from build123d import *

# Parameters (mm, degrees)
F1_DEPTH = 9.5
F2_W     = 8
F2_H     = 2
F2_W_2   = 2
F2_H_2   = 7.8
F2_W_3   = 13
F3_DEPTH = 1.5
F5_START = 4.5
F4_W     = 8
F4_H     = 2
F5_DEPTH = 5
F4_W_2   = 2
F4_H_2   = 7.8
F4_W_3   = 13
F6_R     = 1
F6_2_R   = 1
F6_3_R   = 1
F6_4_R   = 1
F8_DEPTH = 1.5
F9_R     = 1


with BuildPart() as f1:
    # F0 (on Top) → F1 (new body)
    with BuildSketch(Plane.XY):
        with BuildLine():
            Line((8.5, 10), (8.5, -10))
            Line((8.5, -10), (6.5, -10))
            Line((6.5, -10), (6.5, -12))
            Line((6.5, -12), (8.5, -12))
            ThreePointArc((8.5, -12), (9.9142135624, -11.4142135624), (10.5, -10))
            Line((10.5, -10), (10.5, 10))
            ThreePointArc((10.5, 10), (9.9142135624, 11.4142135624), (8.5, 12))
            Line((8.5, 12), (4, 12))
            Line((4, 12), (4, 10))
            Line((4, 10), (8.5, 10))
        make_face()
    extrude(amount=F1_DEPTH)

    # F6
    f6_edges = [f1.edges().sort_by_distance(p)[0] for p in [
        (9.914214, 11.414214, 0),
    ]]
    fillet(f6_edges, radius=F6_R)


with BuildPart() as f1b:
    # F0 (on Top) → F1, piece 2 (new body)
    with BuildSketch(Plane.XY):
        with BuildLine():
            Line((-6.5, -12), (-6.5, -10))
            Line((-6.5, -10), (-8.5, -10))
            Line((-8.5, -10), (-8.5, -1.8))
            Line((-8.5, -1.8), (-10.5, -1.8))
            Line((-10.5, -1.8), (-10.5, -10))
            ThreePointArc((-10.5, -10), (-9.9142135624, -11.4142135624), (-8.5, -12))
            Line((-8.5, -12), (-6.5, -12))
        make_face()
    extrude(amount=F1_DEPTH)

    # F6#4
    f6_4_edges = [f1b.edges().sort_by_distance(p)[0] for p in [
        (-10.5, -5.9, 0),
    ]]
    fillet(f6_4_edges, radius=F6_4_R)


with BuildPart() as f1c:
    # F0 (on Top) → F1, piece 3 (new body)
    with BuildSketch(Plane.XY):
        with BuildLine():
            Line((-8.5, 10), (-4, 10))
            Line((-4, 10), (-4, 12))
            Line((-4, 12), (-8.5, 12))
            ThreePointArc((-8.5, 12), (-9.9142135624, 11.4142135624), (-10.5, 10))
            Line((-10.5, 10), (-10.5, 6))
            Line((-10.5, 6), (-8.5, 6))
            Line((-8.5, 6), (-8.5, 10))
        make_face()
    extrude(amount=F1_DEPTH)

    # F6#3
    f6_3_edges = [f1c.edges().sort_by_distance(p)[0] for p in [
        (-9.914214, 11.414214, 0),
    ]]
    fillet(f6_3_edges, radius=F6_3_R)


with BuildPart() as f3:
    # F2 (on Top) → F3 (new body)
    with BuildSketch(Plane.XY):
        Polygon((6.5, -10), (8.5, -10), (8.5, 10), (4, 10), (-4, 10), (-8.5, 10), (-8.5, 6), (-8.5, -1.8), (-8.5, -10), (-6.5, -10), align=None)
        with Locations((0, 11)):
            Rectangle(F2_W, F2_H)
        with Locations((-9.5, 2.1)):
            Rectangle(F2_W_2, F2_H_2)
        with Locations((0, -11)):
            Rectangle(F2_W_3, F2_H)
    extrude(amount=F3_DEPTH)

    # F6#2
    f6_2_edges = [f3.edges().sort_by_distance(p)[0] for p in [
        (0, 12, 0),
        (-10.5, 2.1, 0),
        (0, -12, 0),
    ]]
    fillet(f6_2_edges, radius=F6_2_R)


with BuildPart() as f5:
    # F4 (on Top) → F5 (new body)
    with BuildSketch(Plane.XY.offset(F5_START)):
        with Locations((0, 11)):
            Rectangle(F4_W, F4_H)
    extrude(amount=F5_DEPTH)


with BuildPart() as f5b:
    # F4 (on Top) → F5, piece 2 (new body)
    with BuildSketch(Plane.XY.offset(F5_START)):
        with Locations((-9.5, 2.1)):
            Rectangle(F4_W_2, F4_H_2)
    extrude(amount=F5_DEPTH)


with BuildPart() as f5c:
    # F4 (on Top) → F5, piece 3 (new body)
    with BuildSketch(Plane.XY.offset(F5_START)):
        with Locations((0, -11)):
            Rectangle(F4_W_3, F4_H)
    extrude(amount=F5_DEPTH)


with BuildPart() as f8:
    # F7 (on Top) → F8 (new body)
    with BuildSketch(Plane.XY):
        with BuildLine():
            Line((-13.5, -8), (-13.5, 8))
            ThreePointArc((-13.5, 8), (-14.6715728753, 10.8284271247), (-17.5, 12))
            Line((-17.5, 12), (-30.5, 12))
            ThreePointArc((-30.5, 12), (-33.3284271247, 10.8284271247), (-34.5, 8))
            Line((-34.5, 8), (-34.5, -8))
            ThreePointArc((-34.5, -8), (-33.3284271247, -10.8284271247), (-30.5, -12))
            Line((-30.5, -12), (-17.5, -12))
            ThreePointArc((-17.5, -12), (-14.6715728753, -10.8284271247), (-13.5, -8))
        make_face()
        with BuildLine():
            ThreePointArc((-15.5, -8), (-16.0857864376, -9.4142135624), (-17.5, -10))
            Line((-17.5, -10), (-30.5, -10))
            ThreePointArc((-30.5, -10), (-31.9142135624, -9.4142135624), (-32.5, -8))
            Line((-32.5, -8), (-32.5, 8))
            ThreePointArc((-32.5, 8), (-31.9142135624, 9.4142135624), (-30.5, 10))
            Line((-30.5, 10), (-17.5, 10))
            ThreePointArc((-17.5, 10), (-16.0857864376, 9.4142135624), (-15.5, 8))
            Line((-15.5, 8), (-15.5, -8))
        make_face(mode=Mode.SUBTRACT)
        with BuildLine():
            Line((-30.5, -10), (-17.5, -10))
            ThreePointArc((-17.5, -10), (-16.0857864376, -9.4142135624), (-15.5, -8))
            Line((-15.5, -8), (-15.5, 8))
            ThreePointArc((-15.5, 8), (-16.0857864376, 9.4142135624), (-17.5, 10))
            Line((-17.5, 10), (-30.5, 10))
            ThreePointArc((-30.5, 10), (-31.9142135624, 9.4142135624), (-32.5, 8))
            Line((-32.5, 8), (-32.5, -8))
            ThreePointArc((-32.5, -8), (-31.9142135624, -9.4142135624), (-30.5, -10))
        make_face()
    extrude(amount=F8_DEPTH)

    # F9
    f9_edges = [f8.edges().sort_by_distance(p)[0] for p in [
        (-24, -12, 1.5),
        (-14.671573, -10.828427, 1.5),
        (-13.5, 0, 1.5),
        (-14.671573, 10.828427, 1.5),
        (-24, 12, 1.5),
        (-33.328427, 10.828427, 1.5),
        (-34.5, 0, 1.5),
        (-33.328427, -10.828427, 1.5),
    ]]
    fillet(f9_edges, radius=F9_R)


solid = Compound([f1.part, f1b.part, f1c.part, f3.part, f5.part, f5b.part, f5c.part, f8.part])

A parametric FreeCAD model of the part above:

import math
import FreeCAD as App
import Part
import Sketcher
from FreeCAD import Vector
Q = App.Units.Quantity


def edges_at(feature, points):
    """Names of the edges that pass closest to the given points."""
    edges = feature.Shape.Edges
    near = lambda p: min(range(len(edges)), key=lambda i: edges[i].distToShape(Part.Vertex(*p))[0])
    return sorted({f"Edge{near(p) + 1}" for p in points})

doc = App.newDocument("Part")
body = doc.addObject("PartDesign::Body", "Body")

sketch1 = body.newObject("Sketcher::SketchObject", "Sketch")
sketch1.AttachmentSupport = (doc.getObject("XY_Plane"), [""])
sketch1.MapMode = "FlatFace"
sketch1.addGeometry([
    Part.LineSegment(Vector(8.5, 10, 0), Vector(8.5, -10, 0)),
    Part.LineSegment(Vector(8.5, -10, 0), Vector(6.5, -10, 0)),
    Part.LineSegment(Vector(6.5, -10, 0), Vector(6.5, -12, 0)),
    Part.LineSegment(Vector(6.5, -12, 0), Vector(8.5, -12, 0)),
    Part.ArcOfCircle(Part.Circle(Vector(8.5, -10, 0), Vector(0, 0, 1), 2), math.radians(-90), math.radians(0)),
    Part.LineSegment(Vector(10.5, -10, 0), Vector(10.5, 10, 0)),
    Part.ArcOfCircle(Part.Circle(Vector(8.5, 10, 0), Vector(0, 0, 1), 2), math.radians(0), math.radians(90)),
    Part.LineSegment(Vector(8.5, 12, 0), Vector(4, 12, 0)),
    Part.LineSegment(Vector(4, 12, 0), Vector(4, 10, 0)),
    Part.LineSegment(Vector(4, 10, 0), Vector(8.5, 10, 0)),
], False)
sketch1.addConstraint([
    Sketcher.Constraint("Coincident", 0, 2, 1, 1),
    Sketcher.Constraint("Coincident", 1, 2, 2, 1),
    Sketcher.Constraint("Coincident", 2, 2, 3, 1),
    Sketcher.Constraint("Tangent", 3, 2, 4, 1),
    Sketcher.Constraint("Tangent", 4, 2, 5, 1),
    Sketcher.Constraint("Tangent", 5, 2, 6, 1),
    Sketcher.Constraint("Tangent", 6, 2, 7, 1),
    Sketcher.Constraint("Coincident", 7, 2, 8, 1),
    Sketcher.Constraint("Coincident", 8, 2, 9, 1),
    Sketcher.Constraint("Coincident", 9, 2, 0, 1),
    Sketcher.Constraint("Vertical", 0),
    Sketcher.Constraint("Horizontal", 1),
    Sketcher.Constraint("Vertical", 2),
    Sketcher.Constraint("Horizontal", 3),
    Sketcher.Constraint("Vertical", 5),
    Sketcher.Constraint("Horizontal", 7),
    Sketcher.Constraint("Vertical", 8),
    Sketcher.Constraint("Horizontal", 9),
    Sketcher.Constraint("Coincident", 0, 2, 4, 3),
    Sketcher.Constraint("Coincident", 9, 2, 6, 3),
    Sketcher.Constraint("Equal", 3, 2),
    Sketcher.Constraint("Radius", 4, Q("2 mm")),
    Sketcher.Constraint("DistanceY", 0, 2, 0, 1, Q("20 mm")),
    Sketcher.Constraint("DistanceX", 7, 2, 7, 1, Q("4.5 mm")),
    Sketcher.Constraint("DistanceY", 4, 3, -1, 1, Q("10 mm")),
    Sketcher.Constraint("DistanceX", -1, 1, 7, 2, Q("4 mm")),
])
pad1 = body.newObject("PartDesign::Pad", "Pad")
pad1.Profile = sketch1
pad1.Length = 9.5
doc.recompute()

fillet = body.newObject("PartDesign::Fillet", "Fillet")
fillet.Base = (pad1, edges_at(pad1, [(9.914, 11.414, 0)]))
fillet.Radius = 1
body2 = doc.addObject("PartDesign::Body", "Body001")

sketch2 = body2.newObject("Sketcher::SketchObject", "Sketch001")
sketch2.AttachmentSupport = (doc.getObject("XY_Plane001"), [""])
sketch2.MapMode = "FlatFace"
sketch2.addGeometry([
    Part.LineSegment(Vector(-6.5, -12, 0), Vector(-6.5, -10, 0)),
    Part.LineSegment(Vector(-6.5, -10, 0), Vector(-8.5, -10, 0)),
    Part.LineSegment(Vector(-8.5, -10, 0), Vector(-8.5, -1.8, 0)),
    Part.LineSegment(Vector(-8.5, -1.8, 0), Vector(-10.5, -1.8, 0)),
    Part.LineSegment(Vector(-10.5, -1.8, 0), Vector(-10.5, -10, 0)),
    Part.ArcOfCircle(Part.Circle(Vector(-8.5, -10, 0), Vector(0, 0, 1), 2), math.radians(180), math.radians(270)),
    Part.LineSegment(Vector(-8.5, -12, 0), Vector(-6.5, -12, 0)),
], False)
sketch2.addConstraint([
    Sketcher.Constraint("Coincident", 0, 2, 1, 1),
    Sketcher.Constraint("Coincident", 1, 2, 2, 1),
    Sketcher.Constraint("Coincident", 2, 2, 3, 1),
    Sketcher.Constraint("Coincident", 3, 2, 4, 1),
    Sketcher.Constraint("Tangent", 4, 2, 5, 1),
    Sketcher.Constraint("Tangent", 5, 2, 6, 1),
    Sketcher.Constraint("Coincident", 6, 2, 0, 1),
    Sketcher.Constraint("Vertical", 0),
    Sketcher.Constraint("Horizontal", 1),
    Sketcher.Constraint("Vertical", 2),
    Sketcher.Constraint("Horizontal", 3),
    Sketcher.Constraint("Vertical", 4),
    Sketcher.Constraint("Horizontal", 6),
    Sketcher.Constraint("Coincident", 1, 2, 5, 3),
    Sketcher.Constraint("Equal", 1, 3),
    Sketcher.Constraint("Radius", 5, Q("2 mm")),
    Sketcher.Constraint("DistanceY", 2, 1, 2, 2, Q("8.2 mm")),
    Sketcher.Constraint("DistanceY", 5, 3, -1, 1, Q("10 mm")),
    Sketcher.Constraint("DistanceX", 5, 3, -1, 1, Q("8.5 mm")),
])
pad2 = body2.newObject("PartDesign::Pad", "Pad001")
pad2.Profile = sketch2
pad2.Length = 9.5
doc.recompute()

fillet2 = body2.newObject("PartDesign::Fillet", "Fillet001")
fillet2.Base = (pad2, edges_at(pad2, [(-10.5, -5.9, 0)]))
fillet2.Radius = 1
body3 = doc.addObject("PartDesign::Body", "Body002")

sketch3 = body3.newObject("Sketcher::SketchObject", "Sketch002")
sketch3.AttachmentSupport = (doc.getObject("XY_Plane002"), [""])
sketch3.MapMode = "FlatFace"
sketch3.addGeometry([
    Part.LineSegment(Vector(-8.5, 10, 0), Vector(-4, 10, 0)),
    Part.LineSegment(Vector(-4, 10, 0), Vector(-4, 12, 0)),
    Part.LineSegment(Vector(-4, 12, 0), Vector(-8.5, 12, 0)),
    Part.ArcOfCircle(Part.Circle(Vector(-8.5, 10, 0), Vector(0, 0, 1), 2), math.radians(90), math.radians(180)),
    Part.LineSegment(Vector(-10.5, 10, 0), Vector(-10.5, 6, 0)),
    Part.LineSegment(Vector(-10.5, 6, 0), Vector(-8.5, 6, 0)),
    Part.LineSegment(Vector(-8.5, 6, 0), Vector(-8.5, 10, 0)),
], False)
sketch3.addConstraint([
    Sketcher.Constraint("Coincident", 0, 2, 1, 1),
    Sketcher.Constraint("Coincident", 1, 2, 2, 1),
    Sketcher.Constraint("Tangent", 2, 2, 3, 1),
    Sketcher.Constraint("Tangent", 3, 2, 4, 1),
    Sketcher.Constraint("Coincident", 4, 2, 5, 1),
    Sketcher.Constraint("Coincident", 5, 2, 6, 1),
    Sketcher.Constraint("Coincident", 6, 2, 0, 1),
    Sketcher.Constraint("Horizontal", 0),
    Sketcher.Constraint("Vertical", 1),
    Sketcher.Constraint("Horizontal", 2),
    Sketcher.Constraint("Vertical", 4),
    Sketcher.Constraint("Horizontal", 5),
    Sketcher.Constraint("Vertical", 6),
    Sketcher.Constraint("Coincident", 6, 2, 3, 3),
    Sketcher.Constraint("Radius", 3, Q("2 mm")),
    Sketcher.Constraint("DistanceY", 4, 2, 4, 1, Q("4 mm")),
    Sketcher.Constraint("DistanceX", 0, 1, 0, 2, Q("4.5 mm")),
    Sketcher.Constraint("DistanceY", -1, 1, 3, 3, Q("10 mm")),
    Sketcher.Constraint("DistanceX", 0, 2, -1, 1, Q("4 mm")),
])
pad3 = body3.newObject("PartDesign::Pad", "Pad002")
pad3.Profile = sketch3
pad3.Length = 9.5
doc.recompute()

fillet3 = body3.newObject("PartDesign::Fillet", "Fillet002")
fillet3.Base = (pad3, edges_at(pad3, [(-9.914, 11.414, 0)]))
fillet3.Radius = 1
body4 = doc.addObject("PartDesign::Body", "Body003")

sketch4 = body4.newObject("Sketcher::SketchObject", "Sketch003")
sketch4.AttachmentSupport = (doc.getObject("XY_Plane003"), [""])
sketch4.MapMode = "FlatFace"
sketch4.addGeometry([
    Part.LineSegment(Vector(8.5, -10, 0), Vector(8.5, 10, 0)),
    Part.LineSegment(Vector(8.5, 10, 0), Vector(4, 10, 0)),
    Part.LineSegment(Vector(4, 10, 0), Vector(4, 12, 0)),
    Part.LineSegment(Vector(4, 12, 0), Vector(-4, 12, 0)),
    Part.LineSegment(Vector(-4, 12, 0), Vector(-4, 10, 0)),
    Part.LineSegment(Vector(-4, 10, 0), Vector(-8.5, 10, 0)),
    Part.LineSegment(Vector(-8.5, 10, 0), Vector(-8.5, 6, 0)),
    Part.LineSegment(Vector(-8.5, 6, 0), Vector(-10.5, 6, 0)),
    Part.LineSegment(Vector(-10.5, 6, 0), Vector(-10.5, -1.8, 0)),
    Part.LineSegment(Vector(-10.5, -1.8, 0), Vector(-8.5, -1.8, 0)),
    Part.LineSegment(Vector(-8.5, -1.8, 0), Vector(-8.5, -10, 0)),
    Part.LineSegment(Vector(-8.5, -10, 0), Vector(-6.5, -10, 0)),
    Part.LineSegment(Vector(-6.5, -10, 0), Vector(-6.5, -12, 0)),
    Part.LineSegment(Vector(-6.5, -12, 0), Vector(6.5, -12, 0)),
    Part.LineSegment(Vector(6.5, -12, 0), Vector(6.5, -10, 0)),
    Part.LineSegment(Vector(6.5, -10, 0), Vector(8.5, -10, 0)),
], False)
sketch4.addConstraint([
    Sketcher.Constraint("Coincident", 0, 2, 1, 1),
    Sketcher.Constraint("Coincident", 1, 2, 2, 1),
    Sketcher.Constraint("Coincident", 2, 2, 3, 1),
    Sketcher.Constraint("Coincident", 3, 2, 4, 1),
    Sketcher.Constraint("Coincident", 4, 2, 5, 1),
    Sketcher.Constraint("Coincident", 5, 2, 6, 1),
    Sketcher.Constraint("Coincident", 6, 2, 7, 1),
    Sketcher.Constraint("Coincident", 7, 2, 8, 1),
    Sketcher.Constraint("Coincident", 8, 2, 9, 1),
    Sketcher.Constraint("Coincident", 9, 2, 10, 1),
    Sketcher.Constraint("Coincident", 10, 2, 11, 1),
    Sketcher.Constraint("Coincident", 11, 2, 12, 1),
    Sketcher.Constraint("Coincident", 12, 2, 13, 1),
    Sketcher.Constraint("Coincident", 13, 2, 14, 1),
    Sketcher.Constraint("Coincident", 14, 2, 15, 1),
    Sketcher.Constraint("Coincident", 15, 2, 0, 1),
    Sketcher.Constraint("Vertical", 0),
    Sketcher.Constraint("Horizontal", 1),
    Sketcher.Constraint("Vertical", 2),
    Sketcher.Constraint("Horizontal", 3),
    Sketcher.Constraint("Vertical", 4),
    Sketcher.Constraint("Horizontal", 5),
    Sketcher.Constraint("Vertical", 6),
    Sketcher.Constraint("Horizontal", 7),
    Sketcher.Constraint("Vertical", 8),
    Sketcher.Constraint("Horizontal", 9),
    Sketcher.Constraint("Vertical", 10),
    Sketcher.Constraint("Horizontal", 11),
    Sketcher.Constraint("Vertical", 12),
    Sketcher.Constraint("Horizontal", 13),
    Sketcher.Constraint("Vertical", 14),
    Sketcher.Constraint("Horizontal", 15),
    Sketcher.Constraint("Symmetric", 0, 2, 10, 2, -1, 1),
    Sketcher.Constraint("Symmetric", 5, 2, 15, 2, -1, 1),
    Sketcher.Constraint("Symmetric", 1, 2, 4, 2, -2),
    Sketcher.Constraint("Equal", 9, 11),
    Sketcher.Constraint("Equal", 11, 15),
    Sketcher.Constraint("Equal", 15, 2),
    Sketcher.Constraint("Equal", 4, 12),
    Sketcher.Constraint("DistanceX", 3, 2, 3, 1, Q("8 mm")),
    Sketcher.Constraint("DistanceX", 7, 2, 7, 1, Q("2 mm")),
    Sketcher.Constraint("DistanceX", 13, 1, 13, 2, Q("13 mm")),
    Sketcher.Constraint("DistanceY", 0, 1, 0, 2, Q("20 mm")),
    Sketcher.Constraint("DistanceY", 6, 2, 6, 1, Q("4 mm")),
    Sketcher.Constraint("DistanceY", 8, 2, 8, 1, Q("7.8 mm")),
])
pad4 = body4.newObject("PartDesign::Pad", "Pad003")
pad4.Profile = sketch4
pad4.Length = 1.5
doc.recompute()

fillet4 = body4.newObject("PartDesign::Fillet", "Fillet003")
fillet4.Base = (pad4, edges_at(pad4, [(0, 12, 0), (-10.5, 2.1, 0), (0, -12, 0)]))
fillet4.Radius = 1
body5 = doc.addObject("PartDesign::Body", "Body004")

sketch5 = body5.newObject("Sketcher::SketchObject", "Sketch004")
sketch5.AttachmentSupport = (doc.getObject("XY_Plane004"), [""])
sketch5.MapMode = "FlatFace"
sketch5.AttachmentOffset = App.Placement(Vector(0, 0, 4.5), App.Rotation())
sketch5.addGeometry([
    Part.LineSegment(Vector(-4, 12, 0), Vector(-4, 10, 0)),
    Part.LineSegment(Vector(-4, 10, 0), Vector(4, 10, 0)),
    Part.LineSegment(Vector(4, 10, 0), Vector(4, 12, 0)),
    Part.LineSegment(Vector(4, 12, 0), Vector(-4, 12, 0)),
], False)
sketch5.addConstraint([
    Sketcher.Constraint("Coincident", 0, 2, 1, 1),
    Sketcher.Constraint("Coincident", 1, 2, 2, 1),
    Sketcher.Constraint("Coincident", 2, 2, 3, 1),
    Sketcher.Constraint("Coincident", 3, 2, 0, 1),
    Sketcher.Constraint("Vertical", 0),
    Sketcher.Constraint("Horizontal", 1),
    Sketcher.Constraint("Vertical", 2),
    Sketcher.Constraint("Horizontal", 3),
    Sketcher.Constraint("DistanceX", 1, 1, 1, 2, Q("8 mm")),
    Sketcher.Constraint("DistanceY", 0, 2, 0, 1, Q("2 mm")),
    Sketcher.Constraint("DistanceX", 0, 2, -1, 1, Q("4 mm")),
    Sketcher.Constraint("DistanceY", -1, 1, 0, 2, Q("10 mm")),
])
pad5 = body5.newObject("PartDesign::Pad", "Pad004")
pad5.Profile = sketch5
pad5.Length = 5
body6 = doc.addObject("PartDesign::Body", "Body005")

sketch6 = body6.newObject("Sketcher::SketchObject", "Sketch005")
sketch6.AttachmentSupport = (doc.getObject("XY_Plane005"), [""])
sketch6.MapMode = "FlatFace"
sketch6.AttachmentOffset = App.Placement(Vector(0, 0, 4.5), App.Rotation())
sketch6.addGeometry([
    Part.LineSegment(Vector(-10.5, 6, 0), Vector(-10.5, -1.8, 0)),
    Part.LineSegment(Vector(-10.5, -1.8, 0), Vector(-8.5, -1.8, 0)),
    Part.LineSegment(Vector(-8.5, -1.8, 0), Vector(-8.5, 6, 0)),
    Part.LineSegment(Vector(-8.5, 6, 0), Vector(-10.5, 6, 0)),
], False)
sketch6.addConstraint([
    Sketcher.Constraint("Coincident", 0, 2, 1, 1),
    Sketcher.Constraint("Coincident", 1, 2, 2, 1),
    Sketcher.Constraint("Coincident", 2, 2, 3, 1),
    Sketcher.Constraint("Coincident", 3, 2, 0, 1),
    Sketcher.Constraint("Vertical", 0),
    Sketcher.Constraint("Horizontal", 1),
    Sketcher.Constraint("Vertical", 2),
    Sketcher.Constraint("Horizontal", 3),
    Sketcher.Constraint("DistanceX", 1, 1, 1, 2, Q("2 mm")),
    Sketcher.Constraint("DistanceY", 0, 2, 0, 1, Q("7.8 mm")),
    Sketcher.Constraint("DistanceY", -1, 1, 2, 2, Q("6 mm")),
    Sketcher.Constraint("DistanceX", 0, 2, -1, 1, Q("10.5 mm")),
])
pad6 = body6.newObject("PartDesign::Pad", "Pad005")
pad6.Profile = sketch6
pad6.Length = 5
body7 = doc.addObject("PartDesign::Body", "Body006")

sketch7 = body7.newObject("Sketcher::SketchObject", "Sketch006")
sketch7.AttachmentSupport = (doc.getObject("XY_Plane006"), [""])
sketch7.MapMode = "FlatFace"
sketch7.AttachmentOffset = App.Placement(Vector(0, 0, 4.5), App.Rotation())
sketch7.addGeometry([
    Part.LineSegment(Vector(-6.5, -10, 0), Vector(-6.5, -12, 0)),
    Part.LineSegment(Vector(-6.5, -12, 0), Vector(6.5, -12, 0)),
    Part.LineSegment(Vector(6.5, -12, 0), Vector(6.5, -10, 0)),
    Part.LineSegment(Vector(6.5, -10, 0), Vector(-6.5, -10, 0)),
], False)
sketch7.addConstraint([
    Sketcher.Constraint("Coincident", 0, 2, 1, 1),
    Sketcher.Constraint("Coincident", 1, 2, 2, 1),
    Sketcher.Constraint("Coincident", 2, 2, 3, 1),
    Sketcher.Constraint("Coincident", 3, 2, 0, 1),
    Sketcher.Constraint("Vertical", 0),
    Sketcher.Constraint("Horizontal", 1),
    Sketcher.Constraint("Vertical", 2),
    Sketcher.Constraint("Horizontal", 3),
    Sketcher.Constraint("DistanceX", 1, 1, 1, 2, Q("13 mm")),
    Sketcher.Constraint("DistanceY", 0, 2, 0, 1, Q("2 mm")),
    Sketcher.Constraint("DistanceY", 0, 2, -1, 1, Q("12 mm")),
    Sketcher.Constraint("DistanceX", 0, 2, -1, 1, Q("6.5 mm")),
])
pad7 = body7.newObject("PartDesign::Pad", "Pad006")
pad7.Profile = sketch7
pad7.Length = 5
body8 = doc.addObject("PartDesign::Body", "Body007")

sketch8 = body8.newObject("Sketcher::SketchObject", "Sketch007")
sketch8.AttachmentSupport = (doc.getObject("XY_Plane007"), [""])
sketch8.MapMode = "FlatFace"
sketch8.addGeometry([
    Part.LineSegment(Vector(-13.5, -8, 0), Vector(-13.5, 8, 0)),
    Part.ArcOfCircle(Part.Circle(Vector(-17.5, 8, 0), Vector(0, 0, 1), 4), math.radians(0), math.radians(90)),
    Part.LineSegment(Vector(-17.5, 12, 0), Vector(-30.5, 12, 0)),
    Part.ArcOfCircle(Part.Circle(Vector(-30.5, 8, 0), Vector(0, 0, 1), 4), math.radians(90), math.radians(180)),
    Part.LineSegment(Vector(-34.5, 8, 0), Vector(-34.5, -8, 0)),
    Part.ArcOfCircle(Part.Circle(Vector(-30.5, -8, 0), Vector(0, 0, 1), 4), math.radians(180), math.radians(270)),
    Part.LineSegment(Vector(-30.5, -12, 0), Vector(-17.5, -12, 0)),
    Part.ArcOfCircle(Part.Circle(Vector(-17.5, -8, 0), Vector(0, 0, 1), 4), math.radians(-90), math.radians(0)),
], False)
sketch8.addConstraint([
    Sketcher.Constraint("Tangent", 0, 2, 1, 1),
    Sketcher.Constraint("Tangent", 1, 2, 2, 1),
    Sketcher.Constraint("Tangent", 2, 2, 3, 1),
    Sketcher.Constraint("Tangent", 3, 2, 4, 1),
    Sketcher.Constraint("Tangent", 4, 2, 5, 1),
    Sketcher.Constraint("Tangent", 5, 2, 6, 1),
    Sketcher.Constraint("Tangent", 6, 2, 7, 1),
    Sketcher.Constraint("Tangent", 7, 2, 0, 1),
    Sketcher.Constraint("Vertical", 0),
    Sketcher.Constraint("Horizontal", 2),
    Sketcher.Constraint("Vertical", 4),
    Sketcher.Constraint("Horizontal", 6),
    Sketcher.Constraint("Equal", 1, 3),
    Sketcher.Constraint("Equal", 3, 5),
    Sketcher.Constraint("Equal", 5, 7),
    Sketcher.Constraint("Radius", 1, Q("4 mm")),
    Sketcher.Constraint("DistanceX", 2, 2, 2, 1, Q("13 mm")),
    Sketcher.Constraint("DistanceY", 0, 1, 0, 2, Q("16 mm")),
    Sketcher.Constraint("DistanceY", -1, 1, 1, 3, Q("8 mm")),
    Sketcher.Constraint("DistanceX", 1, 3, -1, 1, Q("17.5 mm")),
])
pad8 = body8.newObject("PartDesign::Pad", "Pad007")
pad8.Profile = sketch8
pad8.Length = 1.5
doc.recompute()

fillet5 = body8.newObject("PartDesign::Fillet", "Fillet004")
fillet5.Base = (pad8, edges_at(pad8, [
    (-24, -12, 1.5),
    (-14.672, -10.828, 1.5),
    (-13.5, 0, 1.5),
    (-14.672, 10.828, 1.5),
    (-24, 12, 1.5),
    (-33.328, 10.828, 1.5),
    (-34.5, 0, 1.5),
    (-33.328, -10.828, 1.5),
]))
fillet5.Radius = 1

doc.recompute()
